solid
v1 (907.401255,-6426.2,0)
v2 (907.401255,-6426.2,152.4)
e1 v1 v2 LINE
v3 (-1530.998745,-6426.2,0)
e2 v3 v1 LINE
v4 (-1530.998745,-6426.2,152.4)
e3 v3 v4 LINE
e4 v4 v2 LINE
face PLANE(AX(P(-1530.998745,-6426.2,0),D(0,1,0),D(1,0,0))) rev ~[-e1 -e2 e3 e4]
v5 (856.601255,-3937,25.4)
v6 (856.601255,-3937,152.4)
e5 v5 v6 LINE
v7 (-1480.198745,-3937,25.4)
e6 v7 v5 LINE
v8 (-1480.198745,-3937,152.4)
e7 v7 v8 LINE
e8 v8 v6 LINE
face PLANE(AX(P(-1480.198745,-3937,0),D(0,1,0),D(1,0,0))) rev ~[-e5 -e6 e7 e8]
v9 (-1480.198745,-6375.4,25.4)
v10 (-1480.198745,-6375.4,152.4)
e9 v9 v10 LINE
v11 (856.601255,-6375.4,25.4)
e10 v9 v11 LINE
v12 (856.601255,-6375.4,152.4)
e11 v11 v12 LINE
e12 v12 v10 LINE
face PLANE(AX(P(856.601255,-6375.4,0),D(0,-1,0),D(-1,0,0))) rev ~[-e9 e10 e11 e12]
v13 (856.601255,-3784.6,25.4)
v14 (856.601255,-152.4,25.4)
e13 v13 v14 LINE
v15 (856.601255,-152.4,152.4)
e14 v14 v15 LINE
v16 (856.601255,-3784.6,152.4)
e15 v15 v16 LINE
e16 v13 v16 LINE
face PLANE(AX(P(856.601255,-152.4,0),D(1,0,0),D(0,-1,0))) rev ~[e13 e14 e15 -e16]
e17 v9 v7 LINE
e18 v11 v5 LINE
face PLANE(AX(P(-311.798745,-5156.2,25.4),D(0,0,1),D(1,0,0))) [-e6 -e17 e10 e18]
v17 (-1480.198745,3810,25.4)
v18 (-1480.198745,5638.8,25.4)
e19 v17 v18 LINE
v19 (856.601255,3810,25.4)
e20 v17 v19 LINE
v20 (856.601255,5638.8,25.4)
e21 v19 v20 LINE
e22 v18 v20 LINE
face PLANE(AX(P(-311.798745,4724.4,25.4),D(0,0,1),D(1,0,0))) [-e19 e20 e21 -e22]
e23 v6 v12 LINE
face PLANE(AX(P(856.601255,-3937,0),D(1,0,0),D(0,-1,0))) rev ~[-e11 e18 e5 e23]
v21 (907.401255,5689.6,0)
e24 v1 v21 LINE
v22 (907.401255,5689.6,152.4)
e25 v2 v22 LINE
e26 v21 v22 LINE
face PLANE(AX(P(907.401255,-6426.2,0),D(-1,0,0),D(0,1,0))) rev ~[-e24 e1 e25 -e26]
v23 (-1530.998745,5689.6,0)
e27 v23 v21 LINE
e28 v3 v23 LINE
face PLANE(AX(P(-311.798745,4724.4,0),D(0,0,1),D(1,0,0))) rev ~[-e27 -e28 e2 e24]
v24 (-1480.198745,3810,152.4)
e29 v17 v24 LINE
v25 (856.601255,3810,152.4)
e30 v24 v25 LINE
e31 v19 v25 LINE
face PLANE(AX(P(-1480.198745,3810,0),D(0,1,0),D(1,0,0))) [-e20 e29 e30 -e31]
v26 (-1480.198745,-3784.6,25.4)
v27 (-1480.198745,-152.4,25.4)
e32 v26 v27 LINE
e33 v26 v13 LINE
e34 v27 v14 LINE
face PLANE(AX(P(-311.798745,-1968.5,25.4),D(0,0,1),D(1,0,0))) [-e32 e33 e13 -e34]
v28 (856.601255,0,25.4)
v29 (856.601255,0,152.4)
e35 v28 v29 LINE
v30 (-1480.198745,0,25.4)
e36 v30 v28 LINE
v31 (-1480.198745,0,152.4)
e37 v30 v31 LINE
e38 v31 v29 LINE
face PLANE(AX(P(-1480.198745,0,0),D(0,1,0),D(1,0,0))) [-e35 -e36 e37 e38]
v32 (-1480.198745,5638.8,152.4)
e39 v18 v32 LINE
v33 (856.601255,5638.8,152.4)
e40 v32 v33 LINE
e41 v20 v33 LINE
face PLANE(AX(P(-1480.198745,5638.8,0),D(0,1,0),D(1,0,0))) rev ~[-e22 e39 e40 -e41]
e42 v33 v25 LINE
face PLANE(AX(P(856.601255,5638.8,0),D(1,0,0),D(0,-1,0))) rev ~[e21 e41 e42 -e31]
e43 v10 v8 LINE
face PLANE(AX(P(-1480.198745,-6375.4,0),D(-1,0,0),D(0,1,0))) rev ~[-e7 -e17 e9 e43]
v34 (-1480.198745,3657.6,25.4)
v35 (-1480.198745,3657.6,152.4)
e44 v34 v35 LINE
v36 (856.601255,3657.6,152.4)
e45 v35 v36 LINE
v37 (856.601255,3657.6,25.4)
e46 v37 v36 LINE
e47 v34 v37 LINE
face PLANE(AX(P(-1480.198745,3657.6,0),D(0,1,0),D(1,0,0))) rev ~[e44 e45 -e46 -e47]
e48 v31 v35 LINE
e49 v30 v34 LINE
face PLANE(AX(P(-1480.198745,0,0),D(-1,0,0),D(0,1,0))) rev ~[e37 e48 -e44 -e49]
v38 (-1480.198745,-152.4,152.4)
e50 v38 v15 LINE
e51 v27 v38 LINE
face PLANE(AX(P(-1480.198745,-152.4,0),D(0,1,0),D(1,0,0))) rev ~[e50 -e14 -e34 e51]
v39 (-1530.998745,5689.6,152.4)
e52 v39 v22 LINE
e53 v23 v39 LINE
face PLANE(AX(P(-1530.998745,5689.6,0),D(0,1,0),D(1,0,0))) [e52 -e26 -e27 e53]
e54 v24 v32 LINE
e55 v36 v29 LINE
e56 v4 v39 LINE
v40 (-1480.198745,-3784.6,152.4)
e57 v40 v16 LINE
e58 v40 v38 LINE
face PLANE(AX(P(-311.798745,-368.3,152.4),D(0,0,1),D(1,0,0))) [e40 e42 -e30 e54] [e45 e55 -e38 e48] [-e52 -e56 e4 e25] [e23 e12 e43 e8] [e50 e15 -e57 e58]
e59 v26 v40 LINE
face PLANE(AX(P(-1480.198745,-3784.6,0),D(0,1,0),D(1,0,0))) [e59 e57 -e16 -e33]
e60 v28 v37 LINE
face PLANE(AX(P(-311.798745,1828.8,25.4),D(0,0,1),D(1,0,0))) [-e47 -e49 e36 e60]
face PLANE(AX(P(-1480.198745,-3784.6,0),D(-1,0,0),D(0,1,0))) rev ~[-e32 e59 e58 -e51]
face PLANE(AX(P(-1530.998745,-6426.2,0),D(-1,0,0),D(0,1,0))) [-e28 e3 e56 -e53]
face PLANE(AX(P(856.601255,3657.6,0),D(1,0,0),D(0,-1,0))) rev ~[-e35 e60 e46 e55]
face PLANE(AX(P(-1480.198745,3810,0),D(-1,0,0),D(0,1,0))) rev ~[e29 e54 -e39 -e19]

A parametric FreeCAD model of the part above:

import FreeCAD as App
import Part
import Sketcher

V = App.Vector
Q = App.Units.Quantity

doc = App.newDocument("Part")
params = doc.addObject("Spreadsheet::Sheet", "Params")
for row, (alias, value) in enumerate([
    ("sketch1_width", "96 in"),
    ("sketch1_width2", "92 in"),
    ("sketch1_height", "477 in"),
    ("sketch1_height2", "72 in"),
    ("sketch1_height3", "144 in"),
    ("pad1_length", "6 in"),
    ("sketch2_width", "92 in"),
    ("sketch2_height", "72 in"),
    ("sketch2_height2", "144 in"),
    ("sketch2_height3", "143 in"),
    ("sketch2_height4", "96 in"),
    ("pad2_length", "1 in"),
], start=1):
    params.set(f"A{row}", alias)
    params.set(f"B{row}", "=" + value)
    params.setAlias(f"B{row}", alias)

body = doc.addObject("PartDesign::Body", "Body")

# Sketch on XY plane
sketch1 = body.newObject("Sketcher::SketchObject", "Sketch")
sketch1.AttachmentSupport = (doc.getObject("XY_Plane"), [""])
sketch1.MapMode = "FlatFace"
sketch1.addGeometry([
    Part.LineSegment(V(-1530.998745, 5689.6, 0), V(-1530.998745, -6426.2, 0)),  # 0
    Part.LineSegment(V(-1530.998745, -6426.2, 0), V(907.401255, -6426.2, 0)),  # 1
    Part.LineSegment(V(907.401255, -6426.2, 0), V(907.401255, 5689.6, 0)),  # 2
    Part.LineSegment(V(907.401255, 5689.6, 0), V(-1530.998745, 5689.6, 0)),  # 3
    Part.LineSegment(V(856.601255, 5638.8, 0), V(856.601255, 3810, 0)),  # 4
    Part.LineSegment(V(856.601255, 3810, 0), V(-1480.198745, 3810, 0)),  # 5
    Part.LineSegment(V(-1480.198745, 3810, 0), V(-1480.198745, 5638.8, 0)),  # 6
    Part.LineSegment(V(-1480.198745, 5638.8, 0), V(856.601255, 5638.8, 0)),  # 7
    Part.LineSegment(V(856.601255, 3657.6, 0), V(856.601255, 0, 0)),  # 8
    Part.LineSegment(V(856.601255, 0, 0), V(-1480.198745, 0, 0)),  # 9
    Part.LineSegment(V(-1480.198745, 0, 0), V(-1480.198745, 3657.6, 0)),  # 10
    Part.LineSegment(V(-1480.198745, 3657.6, 0), V(856.601255, 3657.6, 0)),  # 11
    Part.LineSegment(V(856.601255, -152.4, 0), V(856.601255, -3784.6, 0)),  # 12
    Part.LineSegment(V(856.601255, -3784.6, 0), V(-1480.198745, -3784.6, 0)),  # 13
    Part.LineSegment(V(-1480.198745, -3784.6, 0), V(-1480.198745, -152.4, 0)),  # 14
    Part.LineSegment(V(-1480.198745, -152.4, 0), V(856.601255, -152.4, 0)),  # 15
    Part.LineSegment(V(856.601255, -3937, 0), V(856.601255, -6375.4, 0)),  # 16
    Part.LineSegment(V(856.601255, -6375.4, 0), V(-1480.198745, -6375.4, 0)),  # 17
    Part.LineSegment(V(-1480.198745, -6375.4, 0), V(-1480.198745, -3937, 0)),  # 18
    Part.LineSegment(V(-1480.198745, -3937, 0), V(856.601255, -3937, 0)),  # 19
], False)
sketch1.addConstraint([
    Sketcher.Constraint("Coincident", 0, 2, 1, 1),
    Sketcher.Constraint("Coincident", 1, 2, 2, 1),
    Sketcher.Constraint("Coincident", 2, 2, 3, 1),
    Sketcher.Constraint("Coincident", 3, 2, 0, 1),
    Sketcher.Constraint("Coincident", 4, 2, 5, 1),
    Sketcher.Constraint("Coincident", 5, 2, 6, 1),
    Sketcher.Constraint("Coincident", 6, 2, 7, 1),
    Sketcher.Constraint("Coincident", 7, 2, 4, 1),
    Sketcher.Constraint("Coincident", 8, 2, 9, 1),
    Sketcher.Constraint("Coincident", 9, 2, 10, 1),
    Sketcher.Constraint("Coincident", 10, 2, 11, 1),
    Sketcher.Constraint("Coincident", 11, 2, 8, 1),
    Sketcher.Constraint("Coincident", 12, 2, 13, 1),
    Sketcher.Constraint("Coincident", 13, 2, 14, 1),
    Sketcher.Constraint("Coincident", 14, 2, 15, 1),
    Sketcher.Constraint("Coincident", 15, 2, 12, 1),
    Sketcher.Constraint("Coincident", 16, 2, 17, 1),
    Sketcher.Constraint("Coincident", 17, 2, 18, 1),
    Sketcher.Constraint("Coincident", 18, 2, 19, 1),
    Sketcher.Constraint("Coincident", 19, 2, 16, 1),
    Sketcher.Constraint("Vertical", 0),
    Sketcher.Constraint("Horizontal", 1),
    Sketcher.Constraint("Vertical", 2),
    Sketcher.Constraint("Horizontal", 3),
    Sketcher.Constraint("Vertical", 4),
    Sketcher.Constraint("Horizontal", 5),
    Sketcher.Constraint("Vertical", 6),
    Sketcher.Constraint("Horizontal", 7),
    Sketcher.Constraint("Vertical", 8),
    Sketcher.Constraint("Horizontal", 9),
    Sketcher.Constraint("Vertical", 10),
    Sketcher.Constraint("Horizontal", 11),
    Sketcher.Constraint("Vertical", 12),
    Sketcher.Constraint("Horizontal", 13),
    Sketcher.Constraint("Vertical", 14),
    Sketcher.Constraint("Horizontal", 15),
    Sketcher.Constraint("Vertical", 16),
    Sketcher.Constraint("Horizontal", 17),
    Sketcher.Constraint("Vertical", 18),
    Sketcher.Constraint("Horizontal", 19),
    Sketcher.Constraint("PointOnObject", 8, 2, -1),
    Sketcher.Constraint("Vertical", 7, 2, 8, 2),
    Sketcher.Constraint("Vertical", 6, 2, 9, 2),
    Sketcher.Constraint("Vertical", 11, 2, 12, 2),
    Sketcher.Constraint("Vertical", 10, 2, 13, 2),
    Sketcher.Constraint("Vertical", 15, 2, 16, 2),
    Sketcher.Constraint("Vertical", 14, 2, 17, 2),
    Sketcher.Constraint("Equal", 3, 16),
    Sketcher.Constraint("DistanceX", 1, 1, 1, 2, Q("96 in")),
    Sketcher.Constraint("DistanceX", 5, 2, 5, 1, Q("92 in")),
    Sketcher.Constraint("DistanceY", 0, 2, 0, 1, Q("477 in")),
    Sketcher.Constraint("DistanceY", 4, 2, 4, 1, Q("72 in")),
    Sketcher.Constraint("DistanceY", 8, 2, 8, 1, Q("144 in")),
    Sketcher.Constraint("DistanceY", 12, 2, 12, 1, Q("143 in")),
    Sketcher.Constraint("DistanceY", 0, 2, -1, 1, Q("253 in")),
    Sketcher.Constraint("DistanceY", -1, 1, 4, 2, Q("150 in")),
    Sketcher.Constraint("DistanceY", 12, 2, -1, 1, Q("149 in")),
    Sketcher.Constraint("DistanceY", 16, 2, -1, 1, Q("251 in")),
    Sketcher.Constraint("DistanceX", 4, 2, 2, 2, Q("2 in")),
    Sketcher.Constraint("DistanceX", 0, 2, -1, 1, Q("1530.998745 mm")),
])
sketch1.setExpression("Constraints[48]", "Params.sketch1_width")
sketch1.setExpression("Constraints[49]", "Params.sketch1_width2")
sketch1.setExpression("Constraints[50]", "Params.sketch1_height")
sketch1.setExpression("Constraints[51]", "Params.sketch1_height2")
sketch1.setExpression("Constraints[52]", "Params.sketch1_height3")
pad1 = body.newObject("PartDesign::Pad", "Pad")
pad1.Profile = sketch1
pad1.setExpression("Length", "Params.pad1_length")

# Sketch on XY plane
sketch2 = body.newObject("Sketcher::SketchObject", "Sketch001")
sketch2.AttachmentSupport = (doc.getObject("XY_Plane"), [""])
sketch2.MapMode = "FlatFace"
sketch2.addGeometry([
    Part.LineSegment(V(-1480.198745, 5638.8, 0), V(-1480.198745, 3810, 0)),  # 0
    Part.LineSegment(V(-1480.198745, 3810, 0), V(856.601255, 3810, 0)),  # 1
    Part.LineSegment(V(856.601255, 3810, 0), V(856.601255, 5638.8, 0)),  # 2
    Part.LineSegment(V(856.601255, 5638.8, 0), V(-1480.198745, 5638.8, 0)),  # 3
    Part.LineSegment(V(-1480.198745, 3657.6, 0), V(-1480.198745, 0, 0)),  # 4
    Part.LineSegment(V(-1480.198745, 0, 0), V(856.601255, 0, 0)),  # 5
    Part.LineSegment(V(856.601255, 0, 0), V(856.601255, 3657.6, 0)),  # 6
    Part.LineSegment(V(856.601255, 3657.6, 0), V(-1480.198745, 3657.6, 0)),  # 7
    Part.LineSegment(V(-1480.198745, -152.4, 0), V(-1480.198745, -3784.6, 0)),  # 8
    Part.LineSegment(V(-1480.198745, -3784.6, 0), V(856.601255, -3784.6, 0)),  # 9
    Part.LineSegment(V(856.601255, -3784.6, 0), V(856.601255, -152.4, 0)),  # 10
    Part.LineSegment(V(856.601255, -152.4, 0), V(-1480.198745, -152.4, 0)),  # 11
    Part.LineSegment(V(-1480.198745, -3937, 0), V(-1480.198745, -6375.4, 0)),  # 12
    Part.LineSegment(V(-1480.198745, -6375.4, 0), V(856.601255, -6375.4, 0)),  # 13
    Part.LineSegment(V(856.601255, -6375.4, 0), V(856.601255, -3937, 0)),  # 14
    Part.LineSegment(V(856.601255, -3937, 0), V(-1480.198745, -3937, 0)),  # 15
], False)
sketch2.addConstraint([
    Sketcher.Constraint("Coincident", 0, 2, 1, 1),
    Sketcher.Constraint("Coincident", 1, 2, 2, 1),
    Sketcher.Constraint("Coincident", 2, 2, 3, 1),
    Sketcher.Constraint("Coincident", 3, 2, 0, 1),
    Sketcher.Constraint("Coincident", 4, 2, 5, 1),
    Sketcher.Constraint("Coincident", 5, 2, 6, 1),
    Sketcher.Constraint("Coincident", 6, 2, 7, 1),
    Sketcher.Constraint("Coincident", 7, 2, 4, 1),
    Sketcher.Constraint("Coincident", 8, 2, 9, 1),
    Sketcher.Constraint("Coincident", 9, 2, 10, 1),
    Sketcher.Constraint("Coincident", 10, 2, 11, 1),
    Sketcher.Constraint("Coincident", 11, 2, 8, 1),
    Sketcher.Constraint("Coincident", 12, 2, 13, 1),
    Sketcher.Constraint("Coincident", 13, 2, 14, 1),
    Sketcher.Constraint("Coincident", 14, 2, 15, 1),
    Sketcher.Constraint("Coincident", 15, 2, 12, 1),
    Sketcher.Constraint("Vertical", 0),
    Sketcher.Constraint("Horizontal", 1),
    Sketcher.Constraint("Vertical", 2),
    Sketcher.Constraint("Horizontal", 3),
    Sketcher.Constraint("Vertical", 4),
    Sketcher.Constraint("Horizontal", 5),
    Sketcher.Constraint("Vertical", 6),
    Sketcher.Constraint("Horizontal", 7),
    Sketcher.Constraint("Vertical", 8),
    Sketcher.Constraint("Horizontal", 9),
    Sketcher.Constraint("Vertical", 10),
    Sketcher.Constraint("Horizontal", 11),
    Sketcher.Constraint("Vertical", 12),
    Sketcher.Constraint("Horizontal", 13),
    Sketcher.Constraint("Vertical", 14),
    Sketcher.Constraint("Horizontal", 15),
    Sketcher.Constraint("PointOnObject", 4, 2, -1),
    Sketcher.Constraint("Vertical", 3, 2, 4, 2),
    Sketcher.Constraint("Vertical", 2, 2, 5, 2),
    Sketcher.Constraint("Vertical", 7, 2, 8, 2),
    Sketcher.Constraint("Vertical", 6, 2, 9, 2),
    Sketcher.Constraint("Vertical", 11, 2, 12, 2),
    Sketcher.Constraint("Vertical", 10, 2, 13, 2),
    Sketcher.Constraint("DistanceX", 1, 1, 1, 2, Q("92 in")),
    Sketcher.Constraint("DistanceY", 0, 2, 0, 1, Q("72 in")),
    Sketcher.Constraint("DistanceY", 4, 2, 4, 1, Q("144 in")),
    Sketcher.Constraint("DistanceY", 8, 2, 8, 1, Q("143 in")),
    Sketcher.Constraint("DistanceY", 12, 2, 12, 1, Q("96 in")),
    Sketcher.Constraint("DistanceY", -1, 1, 0, 2, Q("150 in")),
    Sketcher.Constraint("DistanceY", 8, 2, -1, 1, Q("149 in")),
    Sketcher.Constraint("DistanceY", 12, 2, -1, 1, Q("251 in")),
    Sketcher.Constraint("DistanceX", 0, 2, -1, 1, Q("1480.198745 mm")),
])
sketch2.setExpression("Constraints[39]", "Params.sketch2_width")
sketch2.setExpression("Constraints[40]", "Params.sketch2_height")
sketch2.setExpression("Constraints[41]", "Params.sketch2_height2")
sketch2.setExpression("Constraints[42]", "Params.sketch2_height3")
sketch2.setExpression("Constraints[43]", "Params.sketch2_height4")
pad2 = body.newObject("PartDesign::Pad", "Pad001")
pad2.Profile = sketch2
pad2.setExpression("Length", "Params.pad2_length")

doc.recompute()
